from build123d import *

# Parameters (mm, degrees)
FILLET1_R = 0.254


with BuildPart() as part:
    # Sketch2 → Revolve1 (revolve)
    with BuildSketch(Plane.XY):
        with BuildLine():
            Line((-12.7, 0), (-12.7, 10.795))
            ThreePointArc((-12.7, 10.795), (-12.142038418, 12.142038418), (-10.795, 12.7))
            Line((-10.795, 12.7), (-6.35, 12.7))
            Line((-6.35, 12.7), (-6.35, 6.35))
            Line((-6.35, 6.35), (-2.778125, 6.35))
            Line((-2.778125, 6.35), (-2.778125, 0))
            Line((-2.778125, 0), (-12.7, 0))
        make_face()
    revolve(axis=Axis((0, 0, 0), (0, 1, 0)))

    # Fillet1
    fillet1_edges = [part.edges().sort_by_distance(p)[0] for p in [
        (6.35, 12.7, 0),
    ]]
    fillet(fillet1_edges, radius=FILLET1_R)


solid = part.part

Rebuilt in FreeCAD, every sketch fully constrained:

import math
import FreeCAD as App
import Part
import Sketcher
Q = App.Units.Quantity


def edges_at(feature, points):
    """Names of the edges that pass closest to the given points."""
    edges = feature.Shape.Edges
    near = lambda p: min(range(len(edges)), key=lambda i: edges[i].distToShape(Part.Vertex(*p))[0])
    return sorted({f"Edge{near(p) + 1}" for p in points})

doc = App.newDocument("Part")
body = doc.addObject("PartDesign::Body", "Body")

# Sketch on XY plane
sketch1 = body.newObject("Sketcher::SketchObject", "Sketch")
sketch1.AttachmentSupport = (doc.getObject("XY_Plane"), [""])
sketch1.MapMode = "FlatFace"
sketch1.addGeometry([
    Part.LineSegment(App.Vector(-12.7, 10.795, 0), App.Vector(-12.7, 0, 0)),  # 0
    Part.LineSegment(App.Vector(-12.7, 0, 0), App.Vector(-2.778125, 0, 0)),  # 1
    Part.LineSegment(App.Vector(-2.778125, 0, 0), App.Vector(-2.778125, 6.35, 0)),  # 2
    Part.LineSegment(App.Vector(-2.778125, 6.35, 0), App.Vector(-6.35, 6.35, 0)),  # 3
    Part.LineSegment(App.Vector(-6.35, 6.35, 0), App.Vector(-6.35, 12.7, 0)),  # 4
    Part.LineSegment(App.Vector(-6.35, 12.7, 0), App.Vector(-10.795, 12.7, 0)),  # 5
    Part.ArcOfCircle(Part.Circle(App.Vector(-10.795, 10.795, 0), App.Vector(0, 0, 1), 1.905), math.radians(90), math.radians(180)),  # 6
], False)
sketch1.addConstraint([
    Sketcher.Constraint("Coincident", 0, 2, 1, 1),
    Sketcher.Constraint("Coincident", 1, 2, 2, 1),
    Sketcher.Constraint("Coincident", 2, 2, 3, 1),
    Sketcher.Constraint("Coincident", 3, 2, 4, 1),
    Sketcher.Constraint("Coincident", 4, 2, 5, 1),
    Sketcher.Constraint("Tangent", 5, 2, 6, 1),
    Sketcher.Constraint("Tangent", 6, 2, 0, 1),
    Sketcher.Constraint("Vertical", 0),
    Sketcher.Constraint("Horizontal", 1),
    Sketcher.Constraint("Vertical", 2),
    Sketcher.Constraint("Horizontal", 3),
    Sketcher.Constraint("Vertical", 4),
    Sketcher.Constraint("Horizontal", 5),
    Sketcher.Constraint("PointOnObject", 0, 2, -1),
    Sketcher.Constraint("Equal", 2, 4),
    Sketcher.Constraint("Radius", 6, Q("0.075 in")),
    Sketcher.Constraint("DistanceY", 2, 1, 2, 2, Q("0.25 in")),
    Sketcher.Constraint("DistanceX", 0, 2, -1, 1, Q("0.5 in")),
    Sketcher.Constraint("DistanceX", 1, 1, 1, 2, Q("0.390625 in")),
    Sketcher.Constraint("DistanceX", 3, 2, 3, 1, Q("0.140625 in")),
])
revolution = body.newObject("PartDesign::Revolution", "Revolution")
revolution.Profile = sketch1
revolution.ReferenceAxis = (sketch1, ["V_Axis"])
revolution.Angle = 360
doc.recompute()

fillet = body.newObject("PartDesign::Fillet", "Fillet")
fillet.Base = (revolution, edges_at(revolution, [(6.35, 12.7, 0)]))
fillet.Radius = Q("0.01 in")

doc.recompute()
